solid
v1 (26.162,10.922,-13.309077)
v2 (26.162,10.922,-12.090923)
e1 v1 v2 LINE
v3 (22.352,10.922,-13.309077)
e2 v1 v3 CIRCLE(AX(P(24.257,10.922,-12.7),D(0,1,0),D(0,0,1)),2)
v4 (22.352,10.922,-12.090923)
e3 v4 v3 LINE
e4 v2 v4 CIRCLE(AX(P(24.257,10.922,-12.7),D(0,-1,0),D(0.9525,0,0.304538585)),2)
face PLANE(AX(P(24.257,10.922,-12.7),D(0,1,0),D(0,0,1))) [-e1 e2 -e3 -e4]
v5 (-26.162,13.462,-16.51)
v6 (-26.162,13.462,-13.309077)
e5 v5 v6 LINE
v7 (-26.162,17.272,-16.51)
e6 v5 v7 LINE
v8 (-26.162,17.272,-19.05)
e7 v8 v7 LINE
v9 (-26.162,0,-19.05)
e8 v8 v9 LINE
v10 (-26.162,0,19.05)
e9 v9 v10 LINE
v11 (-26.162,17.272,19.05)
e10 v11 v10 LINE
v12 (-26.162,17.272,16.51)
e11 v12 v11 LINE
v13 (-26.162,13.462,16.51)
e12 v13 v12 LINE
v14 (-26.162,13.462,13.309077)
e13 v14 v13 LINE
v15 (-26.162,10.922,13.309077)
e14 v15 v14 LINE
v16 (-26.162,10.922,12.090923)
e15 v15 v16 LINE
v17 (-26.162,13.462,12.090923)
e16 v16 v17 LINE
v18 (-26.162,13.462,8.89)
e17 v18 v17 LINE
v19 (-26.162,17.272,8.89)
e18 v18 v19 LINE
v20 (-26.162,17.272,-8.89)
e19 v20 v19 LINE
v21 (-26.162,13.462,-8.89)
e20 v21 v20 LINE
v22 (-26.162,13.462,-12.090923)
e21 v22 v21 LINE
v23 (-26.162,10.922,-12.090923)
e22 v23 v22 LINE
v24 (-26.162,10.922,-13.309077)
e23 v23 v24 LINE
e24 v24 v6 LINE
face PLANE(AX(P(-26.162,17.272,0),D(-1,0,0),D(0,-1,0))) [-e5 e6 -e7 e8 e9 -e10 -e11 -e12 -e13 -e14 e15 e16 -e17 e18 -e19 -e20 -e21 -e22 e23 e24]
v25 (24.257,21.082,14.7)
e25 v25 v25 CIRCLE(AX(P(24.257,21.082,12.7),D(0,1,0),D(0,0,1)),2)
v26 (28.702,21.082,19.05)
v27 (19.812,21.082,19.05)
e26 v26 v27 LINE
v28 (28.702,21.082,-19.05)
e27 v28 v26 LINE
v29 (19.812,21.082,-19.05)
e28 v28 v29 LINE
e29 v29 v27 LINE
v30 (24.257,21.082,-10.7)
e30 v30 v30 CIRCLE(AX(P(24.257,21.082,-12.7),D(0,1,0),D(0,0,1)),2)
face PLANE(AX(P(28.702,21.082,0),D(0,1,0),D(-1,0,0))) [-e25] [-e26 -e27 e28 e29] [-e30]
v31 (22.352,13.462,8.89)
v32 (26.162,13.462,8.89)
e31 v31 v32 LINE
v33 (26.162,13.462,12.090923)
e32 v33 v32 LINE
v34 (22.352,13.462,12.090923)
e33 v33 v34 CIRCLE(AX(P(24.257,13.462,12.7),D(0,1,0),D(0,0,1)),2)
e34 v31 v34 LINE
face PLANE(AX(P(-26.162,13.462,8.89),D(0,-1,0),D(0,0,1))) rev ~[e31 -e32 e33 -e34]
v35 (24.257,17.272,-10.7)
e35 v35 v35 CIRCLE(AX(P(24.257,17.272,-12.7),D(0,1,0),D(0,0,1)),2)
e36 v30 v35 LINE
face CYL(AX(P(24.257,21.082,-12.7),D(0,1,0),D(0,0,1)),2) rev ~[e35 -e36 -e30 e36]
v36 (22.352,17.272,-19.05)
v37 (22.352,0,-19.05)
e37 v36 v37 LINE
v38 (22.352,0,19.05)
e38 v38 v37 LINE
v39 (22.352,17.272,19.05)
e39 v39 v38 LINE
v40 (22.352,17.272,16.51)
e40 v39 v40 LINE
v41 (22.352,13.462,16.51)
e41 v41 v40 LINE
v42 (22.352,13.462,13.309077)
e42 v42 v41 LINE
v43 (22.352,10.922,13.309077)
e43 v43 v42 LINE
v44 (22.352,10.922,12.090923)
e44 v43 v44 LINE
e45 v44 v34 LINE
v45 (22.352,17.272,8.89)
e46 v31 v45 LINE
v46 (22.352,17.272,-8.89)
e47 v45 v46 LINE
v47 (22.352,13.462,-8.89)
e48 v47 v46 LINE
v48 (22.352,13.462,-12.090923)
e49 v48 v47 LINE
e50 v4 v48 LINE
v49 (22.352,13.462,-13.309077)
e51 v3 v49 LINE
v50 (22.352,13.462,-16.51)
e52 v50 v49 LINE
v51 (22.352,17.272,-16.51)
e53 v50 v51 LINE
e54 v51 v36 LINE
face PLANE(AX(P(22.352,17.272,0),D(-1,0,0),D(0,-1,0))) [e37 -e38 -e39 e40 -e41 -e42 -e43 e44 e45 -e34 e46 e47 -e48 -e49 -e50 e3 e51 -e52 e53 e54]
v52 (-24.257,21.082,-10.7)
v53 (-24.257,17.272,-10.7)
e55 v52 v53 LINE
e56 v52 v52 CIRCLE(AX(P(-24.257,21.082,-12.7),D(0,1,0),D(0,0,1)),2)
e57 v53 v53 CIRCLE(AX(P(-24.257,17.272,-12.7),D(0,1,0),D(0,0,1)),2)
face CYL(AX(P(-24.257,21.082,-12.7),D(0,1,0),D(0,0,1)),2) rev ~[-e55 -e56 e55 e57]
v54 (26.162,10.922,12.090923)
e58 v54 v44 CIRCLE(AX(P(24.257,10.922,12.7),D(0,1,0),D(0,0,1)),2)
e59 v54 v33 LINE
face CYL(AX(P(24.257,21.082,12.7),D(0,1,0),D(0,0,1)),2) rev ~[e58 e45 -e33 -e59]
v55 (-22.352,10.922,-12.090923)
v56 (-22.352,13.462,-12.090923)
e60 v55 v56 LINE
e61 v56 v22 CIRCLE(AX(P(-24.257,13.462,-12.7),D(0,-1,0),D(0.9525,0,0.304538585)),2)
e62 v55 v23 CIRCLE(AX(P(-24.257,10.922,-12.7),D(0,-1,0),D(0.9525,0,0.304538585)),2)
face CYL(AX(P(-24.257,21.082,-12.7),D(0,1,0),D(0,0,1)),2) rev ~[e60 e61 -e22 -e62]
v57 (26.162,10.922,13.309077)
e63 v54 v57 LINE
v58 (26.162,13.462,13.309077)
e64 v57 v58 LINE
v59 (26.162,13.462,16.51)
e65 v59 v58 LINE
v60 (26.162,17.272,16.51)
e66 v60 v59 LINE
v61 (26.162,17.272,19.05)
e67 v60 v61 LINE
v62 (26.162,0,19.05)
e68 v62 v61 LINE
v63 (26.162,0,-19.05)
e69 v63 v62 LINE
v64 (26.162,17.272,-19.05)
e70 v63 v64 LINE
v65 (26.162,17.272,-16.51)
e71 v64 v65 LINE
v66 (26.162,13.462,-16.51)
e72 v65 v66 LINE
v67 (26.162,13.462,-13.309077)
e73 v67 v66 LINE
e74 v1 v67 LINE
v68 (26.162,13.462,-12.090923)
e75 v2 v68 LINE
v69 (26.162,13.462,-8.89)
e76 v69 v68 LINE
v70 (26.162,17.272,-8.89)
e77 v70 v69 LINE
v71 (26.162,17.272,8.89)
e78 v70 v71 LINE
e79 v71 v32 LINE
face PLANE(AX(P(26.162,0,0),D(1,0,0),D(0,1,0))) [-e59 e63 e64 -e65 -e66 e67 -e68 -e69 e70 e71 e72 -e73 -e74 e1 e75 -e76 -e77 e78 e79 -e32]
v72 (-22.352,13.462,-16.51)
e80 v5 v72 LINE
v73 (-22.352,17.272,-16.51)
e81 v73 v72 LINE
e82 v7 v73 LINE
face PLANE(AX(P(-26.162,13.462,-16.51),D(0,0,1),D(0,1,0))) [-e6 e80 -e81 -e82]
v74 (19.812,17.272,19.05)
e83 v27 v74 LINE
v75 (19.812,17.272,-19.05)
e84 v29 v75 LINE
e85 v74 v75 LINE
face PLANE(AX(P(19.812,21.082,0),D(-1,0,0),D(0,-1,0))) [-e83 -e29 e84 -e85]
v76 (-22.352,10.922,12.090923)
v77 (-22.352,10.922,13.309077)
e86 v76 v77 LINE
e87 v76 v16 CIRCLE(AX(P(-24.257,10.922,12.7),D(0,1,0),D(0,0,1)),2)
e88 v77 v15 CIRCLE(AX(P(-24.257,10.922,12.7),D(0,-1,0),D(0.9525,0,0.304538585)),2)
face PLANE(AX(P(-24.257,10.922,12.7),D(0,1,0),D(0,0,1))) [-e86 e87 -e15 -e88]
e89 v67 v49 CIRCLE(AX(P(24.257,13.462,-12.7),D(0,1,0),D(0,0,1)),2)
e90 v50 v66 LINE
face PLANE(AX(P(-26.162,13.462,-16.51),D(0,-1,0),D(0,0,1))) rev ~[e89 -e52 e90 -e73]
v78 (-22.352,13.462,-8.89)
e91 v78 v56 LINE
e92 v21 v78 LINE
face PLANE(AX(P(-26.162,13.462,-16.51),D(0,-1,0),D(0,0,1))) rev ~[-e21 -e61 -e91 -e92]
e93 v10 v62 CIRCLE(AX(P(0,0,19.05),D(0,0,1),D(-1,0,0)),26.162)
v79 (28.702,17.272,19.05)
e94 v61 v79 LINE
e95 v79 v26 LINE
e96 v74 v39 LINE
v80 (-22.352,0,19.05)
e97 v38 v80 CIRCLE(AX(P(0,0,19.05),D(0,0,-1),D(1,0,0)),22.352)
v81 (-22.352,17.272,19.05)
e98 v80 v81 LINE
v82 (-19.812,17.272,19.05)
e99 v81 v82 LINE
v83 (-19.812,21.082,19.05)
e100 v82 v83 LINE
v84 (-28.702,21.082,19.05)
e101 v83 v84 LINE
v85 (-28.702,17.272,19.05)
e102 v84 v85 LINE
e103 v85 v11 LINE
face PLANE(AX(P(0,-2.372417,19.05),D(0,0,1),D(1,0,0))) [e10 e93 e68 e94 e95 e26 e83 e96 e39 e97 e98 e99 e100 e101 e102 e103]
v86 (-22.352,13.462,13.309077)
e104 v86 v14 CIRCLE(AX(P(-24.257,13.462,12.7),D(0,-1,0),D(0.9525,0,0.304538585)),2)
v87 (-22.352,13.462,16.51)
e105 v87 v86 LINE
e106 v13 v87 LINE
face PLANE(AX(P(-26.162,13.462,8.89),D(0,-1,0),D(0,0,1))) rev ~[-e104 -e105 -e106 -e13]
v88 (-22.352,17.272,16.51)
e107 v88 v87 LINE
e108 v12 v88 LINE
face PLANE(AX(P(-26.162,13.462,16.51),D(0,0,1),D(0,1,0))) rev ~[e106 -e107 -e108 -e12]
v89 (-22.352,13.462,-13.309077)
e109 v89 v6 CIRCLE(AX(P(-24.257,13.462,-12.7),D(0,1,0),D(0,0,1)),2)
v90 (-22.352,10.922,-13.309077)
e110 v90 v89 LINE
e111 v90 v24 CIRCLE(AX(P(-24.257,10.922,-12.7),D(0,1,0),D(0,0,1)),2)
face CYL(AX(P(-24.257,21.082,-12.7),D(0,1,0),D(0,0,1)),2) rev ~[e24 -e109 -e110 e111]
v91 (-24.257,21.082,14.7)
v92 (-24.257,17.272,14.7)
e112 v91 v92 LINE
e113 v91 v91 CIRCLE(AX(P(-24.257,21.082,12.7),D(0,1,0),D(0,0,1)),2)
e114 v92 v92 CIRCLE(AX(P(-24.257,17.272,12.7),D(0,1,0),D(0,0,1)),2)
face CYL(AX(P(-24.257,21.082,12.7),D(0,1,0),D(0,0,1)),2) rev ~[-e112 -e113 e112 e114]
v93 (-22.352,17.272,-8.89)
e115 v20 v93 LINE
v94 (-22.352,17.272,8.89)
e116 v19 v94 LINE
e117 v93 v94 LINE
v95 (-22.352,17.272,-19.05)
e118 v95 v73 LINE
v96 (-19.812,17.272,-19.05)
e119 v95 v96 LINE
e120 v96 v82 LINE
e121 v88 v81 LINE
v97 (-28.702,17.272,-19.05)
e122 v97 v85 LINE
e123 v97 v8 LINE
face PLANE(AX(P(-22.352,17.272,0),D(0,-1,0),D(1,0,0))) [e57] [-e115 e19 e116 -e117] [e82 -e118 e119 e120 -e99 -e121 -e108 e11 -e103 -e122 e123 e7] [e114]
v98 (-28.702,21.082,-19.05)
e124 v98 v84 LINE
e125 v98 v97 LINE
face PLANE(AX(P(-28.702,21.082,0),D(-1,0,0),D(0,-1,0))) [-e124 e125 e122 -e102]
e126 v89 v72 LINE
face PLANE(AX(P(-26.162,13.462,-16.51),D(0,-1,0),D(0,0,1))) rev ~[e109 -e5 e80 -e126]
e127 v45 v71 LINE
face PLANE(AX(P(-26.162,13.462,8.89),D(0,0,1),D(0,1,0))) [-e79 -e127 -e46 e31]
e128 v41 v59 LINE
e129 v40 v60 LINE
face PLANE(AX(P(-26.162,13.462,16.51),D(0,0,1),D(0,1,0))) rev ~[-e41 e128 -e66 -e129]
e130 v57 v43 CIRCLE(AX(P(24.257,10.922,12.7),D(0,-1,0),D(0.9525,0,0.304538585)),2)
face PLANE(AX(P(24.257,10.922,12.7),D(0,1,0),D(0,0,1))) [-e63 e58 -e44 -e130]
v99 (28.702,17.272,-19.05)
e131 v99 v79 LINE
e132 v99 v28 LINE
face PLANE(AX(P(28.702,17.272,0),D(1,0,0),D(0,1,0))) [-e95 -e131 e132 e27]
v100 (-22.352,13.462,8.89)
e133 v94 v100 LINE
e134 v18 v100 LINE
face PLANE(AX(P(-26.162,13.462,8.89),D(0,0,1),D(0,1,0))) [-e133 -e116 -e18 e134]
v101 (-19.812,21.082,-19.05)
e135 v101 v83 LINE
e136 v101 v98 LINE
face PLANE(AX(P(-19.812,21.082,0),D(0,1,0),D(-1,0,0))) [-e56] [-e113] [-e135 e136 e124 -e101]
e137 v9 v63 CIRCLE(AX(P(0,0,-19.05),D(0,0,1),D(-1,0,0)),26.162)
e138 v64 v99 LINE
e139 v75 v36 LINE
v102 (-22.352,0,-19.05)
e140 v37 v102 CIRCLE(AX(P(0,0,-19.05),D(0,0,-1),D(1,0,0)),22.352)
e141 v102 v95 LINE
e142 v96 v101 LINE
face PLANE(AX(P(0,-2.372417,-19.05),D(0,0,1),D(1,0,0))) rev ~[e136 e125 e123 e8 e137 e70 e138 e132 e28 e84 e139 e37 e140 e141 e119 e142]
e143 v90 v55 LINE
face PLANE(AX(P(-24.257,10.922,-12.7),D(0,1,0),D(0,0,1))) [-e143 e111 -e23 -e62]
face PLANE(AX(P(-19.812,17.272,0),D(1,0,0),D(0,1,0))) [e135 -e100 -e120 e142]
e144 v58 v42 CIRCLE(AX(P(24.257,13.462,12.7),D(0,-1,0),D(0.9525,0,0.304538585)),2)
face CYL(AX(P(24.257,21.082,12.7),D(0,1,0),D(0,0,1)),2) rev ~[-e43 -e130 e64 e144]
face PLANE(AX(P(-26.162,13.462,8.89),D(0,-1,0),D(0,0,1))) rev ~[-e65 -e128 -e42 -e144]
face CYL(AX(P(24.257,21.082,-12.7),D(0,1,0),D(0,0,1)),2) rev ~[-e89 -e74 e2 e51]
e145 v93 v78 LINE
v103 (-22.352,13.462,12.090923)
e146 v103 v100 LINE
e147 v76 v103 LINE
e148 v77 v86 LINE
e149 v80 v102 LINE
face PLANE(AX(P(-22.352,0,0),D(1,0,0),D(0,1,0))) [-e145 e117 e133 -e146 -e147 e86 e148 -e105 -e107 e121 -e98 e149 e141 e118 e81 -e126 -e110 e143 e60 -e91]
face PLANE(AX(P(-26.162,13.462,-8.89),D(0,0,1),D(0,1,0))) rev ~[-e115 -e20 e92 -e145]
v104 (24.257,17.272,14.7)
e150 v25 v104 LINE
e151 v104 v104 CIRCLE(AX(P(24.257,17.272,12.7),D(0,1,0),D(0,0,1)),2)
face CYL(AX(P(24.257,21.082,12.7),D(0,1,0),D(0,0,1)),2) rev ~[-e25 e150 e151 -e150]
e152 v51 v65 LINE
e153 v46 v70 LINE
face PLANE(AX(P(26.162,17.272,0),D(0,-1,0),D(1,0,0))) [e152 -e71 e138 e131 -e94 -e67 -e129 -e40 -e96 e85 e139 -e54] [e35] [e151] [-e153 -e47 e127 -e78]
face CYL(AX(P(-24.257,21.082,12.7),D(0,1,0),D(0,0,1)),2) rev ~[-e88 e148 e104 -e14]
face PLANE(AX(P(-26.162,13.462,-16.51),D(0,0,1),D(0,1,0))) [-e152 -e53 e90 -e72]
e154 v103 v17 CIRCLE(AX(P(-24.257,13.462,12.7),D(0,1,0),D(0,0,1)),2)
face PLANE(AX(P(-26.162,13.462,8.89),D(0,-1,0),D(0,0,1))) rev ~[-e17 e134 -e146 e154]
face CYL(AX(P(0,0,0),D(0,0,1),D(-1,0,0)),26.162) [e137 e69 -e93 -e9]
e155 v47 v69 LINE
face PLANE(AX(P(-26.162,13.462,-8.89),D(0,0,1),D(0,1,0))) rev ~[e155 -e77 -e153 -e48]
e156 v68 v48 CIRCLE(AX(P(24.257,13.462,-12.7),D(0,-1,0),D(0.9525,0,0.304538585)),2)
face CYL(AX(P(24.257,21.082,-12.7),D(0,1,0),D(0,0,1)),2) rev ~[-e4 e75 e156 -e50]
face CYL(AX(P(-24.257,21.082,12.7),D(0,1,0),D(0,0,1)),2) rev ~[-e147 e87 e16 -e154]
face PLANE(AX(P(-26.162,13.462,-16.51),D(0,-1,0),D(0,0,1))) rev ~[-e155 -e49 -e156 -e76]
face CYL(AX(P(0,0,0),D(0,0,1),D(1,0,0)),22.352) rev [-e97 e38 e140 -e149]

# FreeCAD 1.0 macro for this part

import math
import FreeCAD as App
import Part
import Sketcher

V = App.Vector
Q = App.Units.Quantity

doc = App.newDocument("Part")
body = doc.addObject("PartDesign::Body", "Body")

sketch1 = body.newObject("Sketcher::SketchObject", "Sketch")
sketch1.AttachmentSupport = (doc.getObject("XY_Plane"), [""])
sketch1.MapMode = "FlatFace"
sketch1.addGeometry([
    Part.LineSegment(V(-22.4, 0, 0), V(-22.4, 17.3, 0)),
    Part.LineSegment(V(-22.4, 17.3, 0), V(-19.8, 17.3, 0)),
    Part.LineSegment(V(-19.8, 17.3, 0), V(-19.8, 21.1, 0)),
    Part.LineSegment(V(-19.8, 21.1, 0), V(-28.7, 21.1, 0)),
    Part.LineSegment(V(-28.7, 21.1, 0), V(-28.7, 17.3, 0)),
    Part.LineSegment(V(-28.7, 17.3, 0), V(-26.2, 17.3, 0)),
    Part.LineSegment(V(-26.2, 17.3, 0), V(-26.2, 0, 0)),
    Part.ArcOfCircle(Part.Circle(V(0, 0, 0), V(0, 0, 1), 26.2), math.radians(180), math.radians(360)),
    Part.LineSegment(V(26.2, 0, 0), V(26.2, 17.3, 0)),
    Part.LineSegment(V(26.2, 17.3, 0), V(28.7, 17.3, 0)),
    Part.LineSegment(V(28.7, 17.3, 0), V(28.7, 21.1, 0)),
    Part.LineSegment(V(28.7, 21.1, 0), V(19.8, 21.1, 0)),
    Part.LineSegment(V(19.8, 21.1, 0), V(19.8, 17.3, 0)),
    Part.LineSegment(V(19.8, 17.3, 0), V(22.4, 17.3, 0)),
    Part.LineSegment(V(22.4, 17.3, 0), V(22.4, 0, 0)),
    Part.ArcOfCircle(Part.Circle(V(0, 0, 0), V(0, 0, 1), 22.4), math.radians(180), math.radians(360)),
], False)
sketch1.addConstraint([
    Sketcher.Constraint("Coincident", 0, 2, 1, 1),
    Sketcher.Constraint("Coincident", 1, 2, 2, 1),
    Sketcher.Constraint("Coincident", 2, 2, 3, 1),
    Sketcher.Constraint("Coincident", 3, 2, 4, 1),
    Sketcher.Constraint("Coincident", 4, 2, 5, 1),
    Sketcher.Constraint("Coincident", 5, 2, 6, 1),
    Sketcher.Constraint("Tangent", 6, 2, 7, 1),
    Sketcher.Constraint("Tangent", 7, 2, 8, 1),
    Sketcher.Constraint("Coincident", 8, 2, 9, 1),
    Sketcher.Constraint("Coincident", 9, 2, 10, 1),
    Sketcher.Constraint("Coincident", 10, 2, 11, 1),
    Sketcher.Constraint("Coincident", 11, 2, 12, 1),
    Sketcher.Constraint("Coincident", 12, 2, 13, 1),
    Sketcher.Constraint("Coincident", 13, 2, 14, 1),
    Sketcher.Constraint("Tangent", 14, 2, 15, 2),
    Sketcher.Constraint("Tangent", 15, 1, 0, 1),
    Sketcher.Constraint("Vertical", 0),
    Sketcher.Constraint("Horizontal", 1),
    Sketcher.Constraint("Vertical", 2),
    Sketcher.Constraint("Horizontal", 3),
    Sketcher.Constraint("Vertical", 4),
    Sketcher.Constraint("Horizontal", 5),
    Sketcher.Constraint("Vertical", 6),
    Sketcher.Constraint("Vertical", 8),
    Sketcher.Constraint("Horizontal", 9),
    Sketcher.Constraint("Vertical", 10),
    Sketcher.Constraint("Horizontal", 11),
    Sketcher.Constraint("Vertical", 12),
    Sketcher.Constraint("Horizontal", 13),
    Sketcher.Constraint("Vertical", 14),
    Sketcher.Constraint("Coincident", 7, 3, -1, 1),
    Sketcher.Constraint("Coincident", 15, 3, -1, 1),
    Sketcher.Constraint("Symmetric", 4, 2, 9, 2, -2),
    Sketcher.Constraint("Symmetric", 2, 2, 11, 2, -2),
    Sketcher.Constraint("Horizontal", 1, 2, 4, 2),
    Sketcher.Constraint("Horizontal", 9, 2, 12, 2),
    Sketcher.Constraint("Equal", 1, 5),
    Sketcher.Constraint("Radius", 7, Q("1.03 in")),
    Sketcher.Constraint("Radius", 15, Q("0.88 in")),
    Sketcher.Constraint("DistanceX", 1, 1, 1, 2, Q("0.1 in")),
    Sketcher.Constraint("DistanceY", 0, 1, 0, 2, Q("0.68 in")),
    Sketcher.Constraint("DistanceY", 2, 1, 2, 2, Q("0.15 in")),
])
pad1 = body.newObject("PartDesign::Pad", "Pad")
pad1.Profile = sketch1
pad1.Length = Q("1.5 in")
pad1.Midplane = True

sketch2 = body.newObject("Sketcher::SketchObject", "Sketch001")
sketch2.AttachmentSupport = (doc.getObject("XZ_Plane"), [""])
sketch2.MapMode = "FlatFace"
sketch2.AttachmentOffset = App.Placement(V(0, 0, -0.83 * 25.4), App.Rotation())
sketch2.addGeometry([
    Part.Circle(V(-24.3, -12.7, 0), V(0, 0, 1), 2),
    Part.Circle(V(-24.3, 12.7, 0), V(0, 0, 1), 2),
    Part.Circle(V(24.3, 12.7, 0), V(0, 0, 1), 2),
    Part.Circle(V(24.3, -12.7, 0), V(0, 0, 1), 2),
], False)
sketch2.addConstraint([
    Sketcher.Constraint("Equal", 0, 1),
    Sketcher.Constraint("Equal", 1, 2),
    Sketcher.Constraint("Equal", 2, 3),
    Sketcher.Constraint("Symmetric", 0, 3, 2, 3, -1, 1),
    Sketcher.Constraint("Symmetric", 1, 3, 3, 3, -1, 1),
    Sketcher.Constraint("Symmetric", 1, 3, 2, 3, -2),
    Sketcher.Constraint("DistanceY", 0, 3, 1, 3, Q("1 in")),
    Sketcher.Constraint("Diameter", 0, 4.0),
    Sketcher.Constraint("DistanceX", 1, 3, 2, 3, Q("1.91 in")),
])
pocket1 = body.newObject("PartDesign::Pocket", "Pocket")
pocket1.Profile = sketch2
pocket1.Length = Q("0.4 in")
pocket1.Reversed = True

sketch3 = body.newObject("Sketcher::SketchObject", "Sketch002")
sketch3.AttachmentSupport = (doc.getObject("YZ_Plane"), [""])
sketch3.MapMode = "FlatFace"
sketch3.AttachmentOffset = App.Placement(V(0, 0, -1.03 * 25.4), App.Rotation())
sketch3.addGeometry([
    Part.LineSegment(V(17.3, -16.5, 0), V(13.5, -16.5, 0)),
    Part.LineSegment(V(13.5, -16.5, 0), V(13.5, -8.9, 0)),
    Part.LineSegment(V(13.5, -8.9, 0), V(17.3, -8.9, 0)),
    Part.LineSegment(V(17.3, -8.9, 0), V(17.3, -16.5, 0)),
    Part.LineSegment(V(17.3, 8.9, 0), V(13.5, 8.9, 0)),
    Part.LineSegment(V(13.5, 8.9, 0), V(13.5, 16.5, 0)),
    Part.LineSegment(V(13.5, 16.5, 0), V(17.3, 16.5, 0)),
    Part.LineSegment(V(17.3, 16.5, 0), V(17.3, 8.9, 0)),
], False)
sketch3.addConstraint([
    Sketcher.Constraint("Coincident", 0, 2, 1, 1),
    Sketcher.Constraint("Coincident", 1, 2, 2, 1),
    Sketcher.Constraint("Coincident", 2, 2, 3, 1),
    Sketcher.Constraint("Coincident", 3, 2, 0, 1),
    Sketcher.Constraint("Coincident", 4, 2, 5, 1),
    Sketcher.Constraint("Coincident", 5, 2, 6, 1),
    Sketcher.Constraint("Coincident", 6, 2, 7, 1),
    Sketcher.Constraint("Coincident", 7, 2, 4, 1),
    Sketcher.Constraint("Horizontal", 0),
    Sketcher.Constraint("Vertical", 1),
    Sketcher.Constraint("Horizontal", 2),
    Sketcher.Constraint("Vertical", 3),
    Sketcher.Constraint("Horizontal", 4),
    Sketcher.Constraint("Vertical", 5),
    Sketcher.Constraint("Horizontal", 6),
    Sketcher.Constraint("Vertical", 7),
    Sketcher.Constraint("Symmetric", 1, 2, 4, 2, -1),
    Sketcher.Constraint("Symmetric", 3, 2, 6, 2, -1),
    Sketcher.Constraint("DistanceY", 1, 1, 1, 2, Q("0.3 in")),
    Sketcher.Constraint("DistanceY", 0, 2, 4, 2, Q("1 in")),
    Sketcher.Constraint("DistanceX", 0, 2, 0, 1, Q("0.15 in")),
    Sketcher.Constraint("DistanceX", -1, 1, 0, 2, Q("0.53 in")),
])
pocket2 = body.newObject("PartDesign::Pocket", "Pocket001")
pocket2.Profile = sketch3
pocket2.Type = "ThroughAll"
pocket2.Reversed = True

doc.recompute()
